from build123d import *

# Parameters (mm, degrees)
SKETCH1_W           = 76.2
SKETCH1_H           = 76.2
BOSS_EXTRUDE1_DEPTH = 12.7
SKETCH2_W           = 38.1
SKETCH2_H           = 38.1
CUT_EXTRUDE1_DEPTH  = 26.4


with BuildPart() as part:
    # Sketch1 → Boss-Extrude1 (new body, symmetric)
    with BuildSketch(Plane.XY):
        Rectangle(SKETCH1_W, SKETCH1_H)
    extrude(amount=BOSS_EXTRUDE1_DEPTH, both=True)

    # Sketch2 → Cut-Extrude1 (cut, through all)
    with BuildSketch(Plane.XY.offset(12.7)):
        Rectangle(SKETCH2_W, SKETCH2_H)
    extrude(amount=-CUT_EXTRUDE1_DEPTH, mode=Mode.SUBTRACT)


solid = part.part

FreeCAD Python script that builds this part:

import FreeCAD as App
import Part
import Sketcher
from FreeCAD import Vector
Q = App.Units.Quantity


def add_polygon(sketch, points):
    """Adds a closed chain of lines whose ends are joined by coincident constraints."""
    first, n = sketch.GeometryCount, len(points)
    for a, b in zip(points, points[1:] + points[:1]):
        sketch.addGeometry(Part.LineSegment(App.Vector(*a, 0), App.Vector(*b, 0)), False)
    for i in range(n):
        sketch.addConstraint(Sketcher.Constraint("Coincident", first + i, 2, first + (i + 1) % n, 1))

doc = App.newDocument("Part")
params = doc.addObject("Spreadsheet::Sheet", "Params")
for row, (alias, value) in enumerate([
    ("sketch1_width", "3 in"),
    ("pad1_length", "1 in"),
    ("sketch2_width", "1.5 in"),
], start=1):
    params.set(f"A{row}", alias)
    params.set(f"B{row}", "=" + value)
    params.setAlias(f"B{row}", alias)

body = doc.addObject("PartDesign::Body", "Body")

# Sketch on XY plane
sketch1 = body.newObject("Sketcher::SketchObject", "Sketch")
sketch1.AttachmentSupport = (doc.getObject("XY_Plane"), [""])
sketch1.MapMode = "FlatFace"
add_polygon(sketch1, [(-38.1, 38.1), (-38.1, -38.1), (38.1, -38.1), (38.1, 38.1)])  # lines 0-3
sketch1.addConstraint(Sketcher.Constraint("Vertical", 0))
sketch1.addConstraint(Sketcher.Constraint("Horizontal", 1))
sketch1.addConstraint(Sketcher.Constraint("Vertical", 2))
sketch1.addConstraint(Sketcher.Constraint("Horizontal", 3))
sketch1.addConstraint(Sketcher.Constraint("Symmetric", 0, 2, 2, 2, -1, 1))
sketch1.addConstraint(Sketcher.Constraint("Equal", 3, 0))
sketch1.addConstraint(Sketcher.Constraint("DistanceX", 1, 1, 1, 2, Q("3 in")))
sketch1.setExpression("Constraints[10]", "Params.sketch1_width")
pad1 = body.newObject("PartDesign::Pad", "Pad")
pad1.Profile = sketch1
pad1.setExpression("Length", "Params.pad1_length")
pad1.Midplane = True

# Sketch on XY plane
sketch2 = body.newObject("Sketcher::SketchObject", "Sketch001")
sketch2.AttachmentSupport = (doc.getObject("XY_Plane"), [""])
sketch2.MapMode = "FlatFace"
sketch2.AttachmentOffset = App.Placement(Vector(0, 0, 0.5 * 25.4), App.Rotation())
add_polygon(sketch2, [(-19.05, 19.05), (-19.05, -19.05), (19.05, -19.05), (19.05, 19.05)])  # lines 0-3
sketch2.addConstraint(Sketcher.Constraint("Vertical", 0))
sketch2.addConstraint(Sketcher.Constraint("Horizontal", 1))
sketch2.addConstraint(Sketcher.Constraint("Vertical", 2))
sketch2.addConstraint(Sketcher.Constraint("Horizontal", 3))
sketch2.addConstraint(Sketcher.Constraint("Symmetric", 0, 2, 2, 2, -1, 1))
sketch2.addConstraint(Sketcher.Constraint("Equal", 3, 0))
sketch2.addConstraint(Sketcher.Constraint("DistanceX", 1, 1, 1, 2, Q("1.5 in")))
sketch2.setExpression("Constraints[10]", "Params.sketch2_width")
pocket1 = body.newObject("PartDesign::Pocket", "Pocket")
pocket1.Profile = sketch2
pocket1.Type = "ThroughAll"

doc.recompute()
